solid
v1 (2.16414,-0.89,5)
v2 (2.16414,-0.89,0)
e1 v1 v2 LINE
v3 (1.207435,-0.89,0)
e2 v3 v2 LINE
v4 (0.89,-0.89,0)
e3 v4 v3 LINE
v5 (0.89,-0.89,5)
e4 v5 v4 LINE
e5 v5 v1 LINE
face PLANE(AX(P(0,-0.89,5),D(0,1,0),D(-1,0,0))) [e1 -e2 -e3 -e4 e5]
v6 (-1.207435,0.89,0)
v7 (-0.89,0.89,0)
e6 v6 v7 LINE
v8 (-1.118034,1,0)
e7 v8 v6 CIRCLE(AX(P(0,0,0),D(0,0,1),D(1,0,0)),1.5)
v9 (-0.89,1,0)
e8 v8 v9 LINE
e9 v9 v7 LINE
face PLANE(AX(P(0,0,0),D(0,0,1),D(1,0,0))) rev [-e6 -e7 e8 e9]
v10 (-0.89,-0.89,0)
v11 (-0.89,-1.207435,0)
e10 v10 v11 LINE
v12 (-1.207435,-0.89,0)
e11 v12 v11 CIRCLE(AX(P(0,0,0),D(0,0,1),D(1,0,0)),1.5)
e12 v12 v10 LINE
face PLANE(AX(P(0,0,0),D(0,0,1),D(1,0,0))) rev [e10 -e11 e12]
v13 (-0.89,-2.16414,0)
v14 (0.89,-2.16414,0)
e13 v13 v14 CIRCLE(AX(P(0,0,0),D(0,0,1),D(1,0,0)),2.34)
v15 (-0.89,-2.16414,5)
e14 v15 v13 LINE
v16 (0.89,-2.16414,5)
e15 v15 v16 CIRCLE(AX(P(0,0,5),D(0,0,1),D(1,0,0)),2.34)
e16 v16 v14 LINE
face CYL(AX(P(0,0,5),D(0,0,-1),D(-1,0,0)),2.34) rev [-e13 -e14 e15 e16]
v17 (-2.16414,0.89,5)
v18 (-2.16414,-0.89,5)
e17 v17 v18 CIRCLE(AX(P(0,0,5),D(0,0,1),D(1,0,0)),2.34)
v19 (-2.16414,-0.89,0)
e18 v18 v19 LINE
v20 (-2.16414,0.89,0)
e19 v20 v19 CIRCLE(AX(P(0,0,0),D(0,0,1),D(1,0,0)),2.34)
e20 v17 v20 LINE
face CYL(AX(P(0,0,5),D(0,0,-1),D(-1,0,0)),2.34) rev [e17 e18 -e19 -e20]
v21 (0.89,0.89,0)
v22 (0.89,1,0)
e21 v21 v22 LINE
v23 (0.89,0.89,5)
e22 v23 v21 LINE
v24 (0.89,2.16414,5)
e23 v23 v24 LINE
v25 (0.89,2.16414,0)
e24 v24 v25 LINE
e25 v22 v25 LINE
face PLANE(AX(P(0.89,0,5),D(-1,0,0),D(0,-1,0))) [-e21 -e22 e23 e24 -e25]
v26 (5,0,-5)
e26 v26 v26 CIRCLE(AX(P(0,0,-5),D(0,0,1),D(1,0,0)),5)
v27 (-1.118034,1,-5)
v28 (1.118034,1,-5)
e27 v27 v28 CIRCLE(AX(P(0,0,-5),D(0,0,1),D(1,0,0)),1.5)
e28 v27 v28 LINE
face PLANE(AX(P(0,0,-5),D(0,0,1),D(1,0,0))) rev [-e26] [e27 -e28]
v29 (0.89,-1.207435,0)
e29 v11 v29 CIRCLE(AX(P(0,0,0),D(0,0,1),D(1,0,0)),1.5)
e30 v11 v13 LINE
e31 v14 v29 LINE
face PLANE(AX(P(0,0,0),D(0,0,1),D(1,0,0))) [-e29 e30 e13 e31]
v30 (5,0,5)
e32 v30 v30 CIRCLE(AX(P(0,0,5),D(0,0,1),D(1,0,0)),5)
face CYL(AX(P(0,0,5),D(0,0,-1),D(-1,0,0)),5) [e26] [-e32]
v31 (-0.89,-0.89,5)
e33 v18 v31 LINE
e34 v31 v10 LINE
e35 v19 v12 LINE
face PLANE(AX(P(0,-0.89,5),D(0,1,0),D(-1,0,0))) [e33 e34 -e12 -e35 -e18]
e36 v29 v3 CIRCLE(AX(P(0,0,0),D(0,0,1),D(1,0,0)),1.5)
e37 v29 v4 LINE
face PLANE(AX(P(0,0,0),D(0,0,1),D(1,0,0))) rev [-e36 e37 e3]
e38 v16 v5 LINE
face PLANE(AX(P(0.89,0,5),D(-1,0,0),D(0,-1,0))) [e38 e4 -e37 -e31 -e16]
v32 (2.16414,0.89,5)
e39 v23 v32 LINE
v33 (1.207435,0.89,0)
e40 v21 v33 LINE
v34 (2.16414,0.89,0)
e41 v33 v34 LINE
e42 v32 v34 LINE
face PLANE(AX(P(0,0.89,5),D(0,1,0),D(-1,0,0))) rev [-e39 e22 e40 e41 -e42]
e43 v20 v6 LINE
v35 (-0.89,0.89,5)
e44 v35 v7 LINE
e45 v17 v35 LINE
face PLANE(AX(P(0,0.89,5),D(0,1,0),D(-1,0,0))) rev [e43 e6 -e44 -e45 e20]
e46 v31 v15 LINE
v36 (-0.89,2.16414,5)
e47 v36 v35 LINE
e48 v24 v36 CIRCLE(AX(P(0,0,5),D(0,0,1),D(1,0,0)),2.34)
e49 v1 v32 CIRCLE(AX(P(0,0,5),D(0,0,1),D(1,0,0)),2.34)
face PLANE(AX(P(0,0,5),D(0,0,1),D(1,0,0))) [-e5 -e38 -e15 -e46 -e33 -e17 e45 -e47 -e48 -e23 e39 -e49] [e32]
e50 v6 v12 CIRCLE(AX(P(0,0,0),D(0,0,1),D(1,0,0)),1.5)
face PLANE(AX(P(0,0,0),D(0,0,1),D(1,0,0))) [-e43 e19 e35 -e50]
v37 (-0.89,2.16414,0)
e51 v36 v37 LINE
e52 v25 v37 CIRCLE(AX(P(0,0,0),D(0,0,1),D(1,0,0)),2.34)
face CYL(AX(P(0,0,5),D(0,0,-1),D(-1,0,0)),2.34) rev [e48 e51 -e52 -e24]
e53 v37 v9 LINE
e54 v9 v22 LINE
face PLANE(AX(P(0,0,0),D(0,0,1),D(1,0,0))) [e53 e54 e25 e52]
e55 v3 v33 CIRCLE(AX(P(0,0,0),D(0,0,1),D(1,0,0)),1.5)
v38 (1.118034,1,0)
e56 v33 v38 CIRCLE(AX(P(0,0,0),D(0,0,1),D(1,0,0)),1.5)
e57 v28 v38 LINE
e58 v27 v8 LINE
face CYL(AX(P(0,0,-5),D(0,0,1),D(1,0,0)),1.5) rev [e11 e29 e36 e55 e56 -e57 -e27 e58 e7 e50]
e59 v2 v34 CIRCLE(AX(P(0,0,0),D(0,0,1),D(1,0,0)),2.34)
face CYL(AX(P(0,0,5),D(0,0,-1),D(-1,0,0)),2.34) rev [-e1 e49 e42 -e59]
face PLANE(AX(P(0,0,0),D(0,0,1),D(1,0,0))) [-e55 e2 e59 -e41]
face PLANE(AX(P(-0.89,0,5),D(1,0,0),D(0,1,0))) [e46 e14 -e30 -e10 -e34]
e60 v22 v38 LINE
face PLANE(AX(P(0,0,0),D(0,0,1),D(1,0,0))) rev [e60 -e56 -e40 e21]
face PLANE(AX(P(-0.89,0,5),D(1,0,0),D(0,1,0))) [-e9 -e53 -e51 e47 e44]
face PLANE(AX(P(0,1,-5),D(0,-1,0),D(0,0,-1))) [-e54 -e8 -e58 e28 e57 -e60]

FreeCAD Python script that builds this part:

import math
import FreeCAD as App
import Part
import Sketcher
from FreeCAD import Vector
Q = App.Units.Quantity

doc = App.newDocument("Part")
params = doc.addObject("Spreadsheet::Sheet", "Params")
for row, (alias, value) in enumerate([
    ("sketch1_diameter", "10 mm"),
    ("sketch1_radius", "2.34 mm"),
    ("pad1_length", "5 mm"),
    ("sketch2_diameter", "10 mm"),
    ("sketch2_radius", "1.5 mm"),
    ("pad2_length", "5 mm"),
], start=1):
    params.set(f"A{row}", alias)
    params.set(f"B{row}", "=" + value)
    params.setAlias(f"B{row}", alias)

body = doc.addObject("PartDesign::Body", "Body")

# Sketch on XY plane
sketch1 = doc.addObject("Sketcher::SketchObject", "Sketch")
body.addObject(sketch1)
sketch1.AttachmentSupport = (doc.XY_Plane, [""])
sketch1.MapMode = "FlatFace"
sketch1.addGeometry(Part.Circle(Vector(0, 0, 0), Vector(0, 0, 1), 5), False)
sketch1.addGeometry(Part.ArcOfCircle(Part.Circle(Vector(0, 0, 0), Vector(0, 0, 1), 2.3), math.radians(-22), math.radians(22)), False)
sketch1.addGeometry(Part.LineSegment(Vector(2.2, -0.9, 0), Vector(0.9, -0.9, 0)), False)
sketch1.addGeometry(Part.LineSegment(Vector(0.9, -0.9, 0), Vector(0.9, -2.2, 0)), False)
sketch1.addGeometry(Part.ArcOfCircle(Part.Circle(Vector(0, 0, 0), Vector(0, 0, 1), 2.3), math.radians(-112), math.radians(-68)), False)
sketch1.addGeometry(Part.LineSegment(Vector(-0.9, -2.2, 0), Vector(-0.9, -0.9, 0)), False)
sketch1.addGeometry(Part.LineSegment(Vector(-0.9, -0.9, 0), Vector(-2.2, -0.9, 0)), False)
sketch1.addGeometry(Part.ArcOfCircle(Part.Circle(Vector(0, 0, 0), Vector(0, 0, 1), 2.3), math.radians(158), math.radians(202)), False)
sketch1.addGeometry(Part.LineSegment(Vector(-2.2, 0.9, 0), Vector(-0.9, 0.9, 0)), False)
sketch1.addGeometry(Part.LineSegment(Vector(-0.9, 0.9, 0), Vector(-0.9, 2.2, 0)), False)
sketch1.addGeometry(Part.ArcOfCircle(Part.Circle(Vector(0, 0, 0), Vector(0, 0, 1), 2.3), math.radians(68), math.radians(112)), False)
sketch1.addGeometry(Part.LineSegment(Vector(0.9, 2.2, 0), Vector(0.9, 0.9, 0)), False)
sketch1.addGeometry(Part.LineSegment(Vector(0.9, 0.9, 0), Vector(2.2, 0.9, 0)), False)
sketch1.addConstraint(Sketcher.Constraint("Coincident", 1, 1, 2, 1))
sketch1.addConstraint(Sketcher.Constraint("Coincident", 2, 2, 3, 1))
sketch1.addConstraint(Sketcher.Constraint("Coincident", 3, 2, 4, 2))
sketch1.addConstraint(Sketcher.Constraint("Coincident", 4, 1, 5, 1))
sketch1.addConstraint(Sketcher.Constraint("Coincident", 5, 2, 6, 1))
sketch1.addConstraint(Sketcher.Constraint("Coincident", 6, 2, 7, 2))
sketch1.addConstraint(Sketcher.Constraint("Coincident", 7, 1, 8, 1))
sketch1.addConstraint(Sketcher.Constraint("Coincident", 8, 2, 9, 1))
sketch1.addConstraint(Sketcher.Constraint("Coincident", 9, 2, 10, 2))
sketch1.addConstraint(Sketcher.Constraint("Coincident", 10, 1, 11, 1))
sketch1.addConstraint(Sketcher.Constraint("Coincident", 11, 2, 12, 1))
sketch1.addConstraint(Sketcher.Constraint("Coincident", 12, 2, 1, 2))
sketch1.addConstraint(Sketcher.Constraint("Horizontal", 2))
sketch1.addConstraint(Sketcher.Constraint("Vertical", 3))
sketch1.addConstraint(Sketcher.Constraint("Vertical", 5))
sketch1.addConstraint(Sketcher.Constraint("Horizontal", 6))
sketch1.addConstraint(Sketcher.Constraint("Horizontal", 8))
sketch1.addConstraint(Sketcher.Constraint("Vertical", 9))
sketch1.addConstraint(Sketcher.Constraint("Vertical", 11))
sketch1.addConstraint(Sketcher.Constraint("Horizontal", 12))
sketch1.addConstraint(Sketcher.Constraint("Coincident", 0, 3, -1, 1))
sketch1.addConstraint(Sketcher.Constraint("Coincident", 1, 3, -1, 1))
sketch1.addConstraint(Sketcher.Constraint("Coincident", 4, 3, -1, 1))
sketch1.addConstraint(Sketcher.Constraint("Coincident", 7, 3, -1, 1))
sketch1.addConstraint(Sketcher.Constraint("Coincident", 10, 3, -1, 1))
sketch1.addConstraint(Sketcher.Constraint("Equal", 1, 4))
sketch1.addConstraint(Sketcher.Constraint("Equal", 4, 7))
sketch1.addConstraint(Sketcher.Constraint("Equal", 7, 10))
sketch1.addConstraint(Sketcher.Constraint("Symmetric", 2, 2, 8, 2, -1, 1))
sketch1.addConstraint(Sketcher.Constraint("Symmetric", 5, 2, 11, 2, -1, 1))
sketch1.addConstraint(Sketcher.Constraint("Symmetric", 2, 2, 5, 2, -2))
sketch1.addConstraint(Sketcher.Constraint("Equal", 12, 3))
sketch1.addConstraint(Sketcher.Constraint("Diameter", 0, Q("10 mm")))
sketch1.addConstraint(Sketcher.Constraint("Radius", 1, Q("2.34 mm")))
sketch1.addConstraint(Sketcher.Constraint("DistanceY", 1, 1, -1, 1, Q("0.89 mm")))
sketch1.setExpression("Constraints[32]", "Params.sketch1_diameter")
sketch1.setExpression("Constraints[33]", "Params.sketch1_radius")
pad1 = doc.addObject("PartDesign::Pad", "Pad")
body.addObject(pad1)
pad1.Profile = sketch1
pad1.setExpression("Length", "Params.pad1_length")

# Sketch on XY plane
sketch2 = doc.addObject("Sketcher::SketchObject", "Sketch001")
body.addObject(sketch2)
sketch2.AttachmentSupport = (doc.XY_Plane, [""])
sketch2.MapMode = "FlatFace"
sketch2.AttachmentOffset = App.Placement(Vector(0, 0, -5), App.Rotation())
sketch2.addGeometry(Part.Circle(Vector(0, 0, 0), Vector(0, 0, 1), 5), False)
sketch2.addGeometry(Part.ArcOfCircle(Part.Circle(Vector(0, 0, 0), Vector(0, 0, 1), 1.5), math.radians(0), math.radians(36)), False)
sketch2.addGeometry(Part.ArcOfCircle(Part.Circle(Vector(0, 0, 0), Vector(0, 0, 1), 1.5), math.radians(-36), math.radians(0)), False)
sketch2.addGeometry(Part.ArcOfCircle(Part.Circle(Vector(0, 0, 0), Vector(0, 0, 1), 1.5), math.radians(-53.61), math.radians(-36.39)), False)
sketch2.addGeometry(Part.ArcOfCircle(Part.Circle(Vector(0, 0, 0), Vector(0, 0, 1), 1.5), math.radians(-126), math.radians(-54)), False)
sketch2.addGeometry(Part.ArcOfCircle(Part.Circle(Vector(0, 0, 0), Vector(0, 0, 1), 1.5), math.radians(-143.61), math.radians(-126.39)), False)
sketch2.addGeometry(Part.ArcOfCircle(Part.Circle(Vector(0, 0, 0), Vector(0, 0, 1), 1.5), math.radians(144), math.radians(216)), False)
sketch2.addGeometry(Part.ArcOfCircle(Part.Circle(Vector(0, 0, 0), Vector(0, 0, 1), 1.5), math.radians(138.19), math.radians(143.61)), False)
sketch2.addGeometry(Part.LineSegment(Vector(-1.12, 1, 0), Vector(1.12, 1, 0)), False)
sketch2.addGeometry(Part.ArcOfCircle(Part.Circle(Vector(0, 0, 0), Vector(0, 0, 1), 1.5), math.radians(36.39), math.radians(41.81)), False)
sketch2.addConstraint(Sketcher.Constraint("Tangent", 1, 1, 2, 2))
sketch2.addConstraint(Sketcher.Constraint("Tangent", 2, 1, 3, 2))
sketch2.addConstraint(Sketcher.Constraint("Tangent", 3, 1, 4, 2))
sketch2.addConstraint(Sketcher.Constraint("Tangent", 4, 1, 5, 2))
sketch2.addConstraint(Sketcher.Constraint("Tangent", 5, 1, 6, 2))
sketch2.addConstraint(Sketcher.Constraint("Tangent", 6, 1, 7, 2))
sketch2.addConstraint(Sketcher.Constraint("Coincident", 7, 1, 8, 1))
sketch2.addConstraint(Sketcher.Constraint("Coincident", 8, 2, 9, 2))
sketch2.addConstraint(Sketcher.Constraint("Tangent", 9, 1, 1, 2))
sketch2.addConstraint(Sketcher.Constraint("Horizontal", 8))
sketch2.addConstraint(Sketcher.Constraint("Coincident", 0, 3, -1, 1))
sketch2.addConstraint(Sketcher.Constraint("Coincident", 1, 3, -1, 1))
sketch2.addConstraint(Sketcher.Constraint("Coincident", 3, 3, -1, 1))
sketch2.addConstraint(Sketcher.Constraint("Coincident", 5, 3, -1, 1))
sketch2.addConstraint(Sketcher.Constraint("Coincident", 7, 3, -1, 1))
sketch2.addConstraint(Sketcher.Constraint("Equal", 7, 9))
sketch2.addConstraint(Sketcher.Constraint("PointOnObject", 1, 1, -1))
sketch2.addConstraint(Sketcher.Constraint("Horizontal", 3, 1, 4, 1))
sketch2.addConstraint(Sketcher.Constraint("Horizontal", 2, 1, 5, 1))
sketch2.addConstraint(Sketcher.Constraint("Horizontal", 6, 1, 9, 1))
sketch2.addConstraint(Sketcher.Constraint("Vertical", 5, 1, 6, 1))
sketch2.addConstraint(Sketcher.Constraint("Diameter", 0, Q("10 mm")))
sketch2.addConstraint(Sketcher.Constraint("Radius", 1, Q("1.5 mm")))
sketch2.addConstraint(Sketcher.Constraint("DistanceY", -1, 1, 7, 1, Q("1 mm")))
sketch2.addConstraint(Sketcher.Constraint("DistanceY", 2, 1, -1, 1, Q("0.89 mm")))
sketch2.addConstraint(Sketcher.Constraint("DistanceX", -1, 1, 3, 1, Q("0.89 mm")))
sketch2.setExpression("Constraints[21]", "Params.sketch2_diameter")
sketch2.setExpression("Constraints[22]", "Params.sketch2_radius")
pad2 = doc.addObject("PartDesign::Pad", "Pad001")
body.addObject(pad2)
pad2.Profile = sketch2
pad2.setExpression("Length", "Params.pad2_length")

doc.recompute()
